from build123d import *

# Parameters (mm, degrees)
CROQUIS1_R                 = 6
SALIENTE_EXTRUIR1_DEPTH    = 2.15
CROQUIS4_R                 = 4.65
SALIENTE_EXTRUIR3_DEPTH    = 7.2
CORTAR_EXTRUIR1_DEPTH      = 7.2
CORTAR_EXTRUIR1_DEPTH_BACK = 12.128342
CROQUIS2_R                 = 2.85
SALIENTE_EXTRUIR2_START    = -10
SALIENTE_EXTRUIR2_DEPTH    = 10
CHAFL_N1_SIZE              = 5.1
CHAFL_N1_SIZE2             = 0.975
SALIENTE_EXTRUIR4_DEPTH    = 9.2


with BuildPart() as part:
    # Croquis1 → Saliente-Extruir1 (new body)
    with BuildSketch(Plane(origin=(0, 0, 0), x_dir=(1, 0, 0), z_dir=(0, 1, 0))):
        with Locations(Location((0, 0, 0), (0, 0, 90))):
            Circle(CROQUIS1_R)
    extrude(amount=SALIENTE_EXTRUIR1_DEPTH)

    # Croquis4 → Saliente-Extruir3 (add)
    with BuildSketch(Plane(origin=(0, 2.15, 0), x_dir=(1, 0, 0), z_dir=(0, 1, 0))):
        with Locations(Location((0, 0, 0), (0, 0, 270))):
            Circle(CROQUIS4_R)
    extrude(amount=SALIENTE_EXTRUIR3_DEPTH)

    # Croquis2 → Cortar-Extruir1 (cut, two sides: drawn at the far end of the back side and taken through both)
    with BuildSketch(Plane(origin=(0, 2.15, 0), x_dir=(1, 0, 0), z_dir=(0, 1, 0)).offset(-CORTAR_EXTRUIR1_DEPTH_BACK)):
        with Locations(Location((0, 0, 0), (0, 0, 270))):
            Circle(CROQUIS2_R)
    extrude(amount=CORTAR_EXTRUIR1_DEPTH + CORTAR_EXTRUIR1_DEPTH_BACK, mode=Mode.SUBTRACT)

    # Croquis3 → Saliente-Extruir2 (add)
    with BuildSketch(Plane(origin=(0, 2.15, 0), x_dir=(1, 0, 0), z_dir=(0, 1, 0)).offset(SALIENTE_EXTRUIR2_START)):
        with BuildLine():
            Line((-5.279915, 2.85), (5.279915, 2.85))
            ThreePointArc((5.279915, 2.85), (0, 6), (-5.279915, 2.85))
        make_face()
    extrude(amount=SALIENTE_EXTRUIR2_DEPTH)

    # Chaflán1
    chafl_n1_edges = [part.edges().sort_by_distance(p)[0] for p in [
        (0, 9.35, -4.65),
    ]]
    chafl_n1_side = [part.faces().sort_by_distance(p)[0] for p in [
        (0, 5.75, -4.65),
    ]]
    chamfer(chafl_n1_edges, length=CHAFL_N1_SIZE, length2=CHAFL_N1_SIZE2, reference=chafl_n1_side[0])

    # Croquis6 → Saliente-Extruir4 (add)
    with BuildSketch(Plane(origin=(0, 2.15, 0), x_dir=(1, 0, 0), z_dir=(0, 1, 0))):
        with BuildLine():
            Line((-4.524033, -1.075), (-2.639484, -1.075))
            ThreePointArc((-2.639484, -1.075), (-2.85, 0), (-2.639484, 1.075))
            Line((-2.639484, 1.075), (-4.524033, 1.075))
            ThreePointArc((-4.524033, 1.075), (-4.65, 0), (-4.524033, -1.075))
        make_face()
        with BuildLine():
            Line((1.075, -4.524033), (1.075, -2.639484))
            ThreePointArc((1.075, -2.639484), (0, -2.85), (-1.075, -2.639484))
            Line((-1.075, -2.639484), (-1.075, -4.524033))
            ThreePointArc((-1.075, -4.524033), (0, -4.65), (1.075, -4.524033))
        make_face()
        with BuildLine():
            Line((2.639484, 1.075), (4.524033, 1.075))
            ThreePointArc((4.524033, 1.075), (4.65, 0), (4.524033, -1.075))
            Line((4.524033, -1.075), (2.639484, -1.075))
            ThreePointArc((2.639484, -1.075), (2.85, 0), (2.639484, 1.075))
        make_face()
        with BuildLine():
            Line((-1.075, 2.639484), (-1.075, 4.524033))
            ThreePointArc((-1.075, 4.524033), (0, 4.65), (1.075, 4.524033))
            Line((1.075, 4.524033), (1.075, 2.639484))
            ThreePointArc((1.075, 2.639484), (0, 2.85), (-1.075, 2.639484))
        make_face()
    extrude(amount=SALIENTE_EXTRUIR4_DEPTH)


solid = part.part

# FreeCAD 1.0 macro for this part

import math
import FreeCAD as App
import Part
import Sketcher
from FreeCAD import Vector


def edges_at(feature, points):
    """Names of the edges that pass closest to the given points."""
    edges = feature.Shape.Edges
    near = lambda p: min(range(len(edges)), key=lambda i: edges[i].distToShape(Part.Vertex(*p))[0])
    return sorted({f"Edge{near(p) + 1}" for p in points})

doc = App.newDocument("Part")
body = doc.addObject("PartDesign::Body", "Body")

# Sketch on XZ plane
sketch1 = doc.addObject("Sketcher::SketchObject", "Sketch")
body.addObject(sketch1)
sketch1.AttachmentSupport = (doc.XZ_Plane, [""])
sketch1.MapMode = "FlatFace"
sketch1.addGeometry(Part.Circle(Vector(0, 0, 0), Vector(0, 0, 1), 6), False)
sketch1.addConstraint(Sketcher.Constraint("Coincident", 0, 3, -1, 1))
sketch1.addConstraint(Sketcher.Constraint("Diameter", 0, 12.0))
pad1 = doc.addObject("PartDesign::Pad", "Pad")
body.addObject(pad1)
pad1.Profile = sketch1
pad1.Length = 2.15
pad1.Reversed = True

# Sketch on XZ plane
sketch2 = doc.addObject("Sketcher::SketchObject", "Sketch001")
body.addObject(sketch2)
sketch2.AttachmentSupport = (doc.XZ_Plane, [""])
sketch2.MapMode = "FlatFace"
sketch2.AttachmentOffset = App.Placement(Vector(0, 0, -2.15), App.Rotation())
sketch2.addGeometry(Part.Circle(Vector(0, 0, 0), Vector(0, 0, 1), 4.65), False)
sketch2.addConstraint(Sketcher.Constraint("Coincident", 0, 3, -1, 1))
sketch2.addConstraint(Sketcher.Constraint("Diameter", 0, 9.3))
pad2 = doc.addObject("PartDesign::Pad", "Pad001")
body.addObject(pad2)
pad2.Profile = sketch2
pad2.Length = 7.2
pad2.Reversed = True

# Sketch on XZ plane
sketch3 = doc.addObject("Sketcher::SketchObject", "Sketch002")
body.addObject(sketch3)
sketch3.AttachmentSupport = (doc.XZ_Plane, [""])
sketch3.MapMode = "FlatFace"
sketch3.AttachmentOffset = App.Placement(Vector(0, 0, -2.15), App.Rotation())
sketch3.addGeometry(Part.Circle(Vector(0, 0, 0), Vector(0, 0, 1), 2.85), False)
sketch3.addConstraint(Sketcher.Constraint("Coincident", 0, 3, -1, 1))
sketch3.addConstraint(Sketcher.Constraint("Diameter", 0, 5.7))
pocket1 = doc.addObject("PartDesign::Pocket", "Pocket")
body.addObject(pocket1)
pocket1.Profile = sketch3
pocket1.Type = "ThroughAll"
pocket1.Midplane = True

# Sketch on XZ plane
sketch4 = doc.addObject("Sketcher::SketchObject", "Sketch003")
body.addObject(sketch4)
sketch4.AttachmentSupport = (doc.XZ_Plane, [""])
sketch4.MapMode = "FlatFace"
sketch4.AttachmentOffset = App.Placement(Vector(0, 0, 7.85), App.Rotation())
sketch4.addGeometry(Part.LineSegment(Vector(-5.279915, -2.85, 0), Vector(5.279915, -2.85, 0)), False)
sketch4.addGeometry(Part.ArcOfCircle(Part.Circle(Vector(0, 0, 0), Vector(0, 0, 1), 6), math.radians(-151.640648), math.radians(-28.359352)), False)
sketch4.addConstraint(Sketcher.Constraint("Coincident", 0, 1, 1, 1))
sketch4.addConstraint(Sketcher.Constraint("Coincident", 1, 2, 0, 2))
sketch4.addConstraint(Sketcher.Constraint("Horizontal", 0))
sketch4.addConstraint(Sketcher.Constraint("Coincident", 1, 3, -1, 1))
sketch4.addConstraint(Sketcher.Constraint("Radius", 1, 6.0))
sketch4.addConstraint(Sketcher.Constraint("DistanceY", 0, 1, -1, 1, 2.85))
pad3 = doc.addObject("PartDesign::Pad", "Pad002")
body.addObject(pad3)
pad3.Profile = sketch4
pad3.Length = 10
pad3.Reversed = True
doc.recompute()

chamfer = doc.addObject("PartDesign::Chamfer", "Chamfer")
body.addObject(chamfer)
chamfer.Base = (pad3, edges_at(pad3, [(0, 9.35, -4.65)]))
chamfer.ChamferType = "Two distances"
chamfer.Size = 5.1
chamfer.Size2 = 0.975

# Sketch on XZ plane
sketch5 = doc.addObject("Sketcher::SketchObject", "Sketch004")
body.addObject(sketch5)
sketch5.AttachmentSupport = (doc.XZ_Plane, [""])
sketch5.MapMode = "FlatFace"
sketch5.AttachmentOffset = App.Placement(Vector(0, 0, -2.15), App.Rotation())
sketch5.addGeometry(Part.LineSegment(Vector(-4.524033, 1.075, 0), Vector(-2.639484, 1.075, 0)), False)
sketch5.addGeometry(Part.ArcOfCircle(Part.Circle(Vector(0.000002, 0, 0), Vector(0, 0, 1), 2.850002), math.radians(157.840098), math.radians(202.159902)), False)
sketch5.addGeometry(Part.LineSegment(Vector(-2.639484, -1.075, 0), Vector(-4.524033, -1.075, 0)), False)
sketch5.addGeometry(Part.ArcOfCircle(Part.Circle(Vector(-0.000002, 0, 0), Vector(0, 0, 1), 4.649998), math.radians(166.633277), math.radians(193.366723)), False)
sketch5.addGeometry(Part.LineSegment(Vector(1.075, 4.524033, 0), Vector(1.075, 2.639484, 0)), False)
sketch5.addGeometry(Part.ArcOfCircle(Part.Circle(Vector(0, -0.000002, 0), Vector(0, 0, 1), 2.850002), math.radians(67.840098), math.radians(112.159902)), False)
sketch5.addGeometry(Part.LineSegment(Vector(-1.075, 2.639484, 0), Vector(-1.075, 4.524033, 0)), False)
sketch5.addGeometry(Part.ArcOfCircle(Part.Circle(Vector(0, 0.000002, 0), Vector(0, 0, 1), 4.649998), math.radians(76.633277), math.radians(103.366723)), False)
sketch5.addGeometry(Part.LineSegment(Vector(4.524033, -1.075, 0), Vector(2.639484, -1.075, 0)), False)
sketch5.addGeometry(Part.ArcOfCircle(Part.Circle(Vector(-0.000002, 0, 0), Vector(0, 0, 1), 2.850002), math.radians(-22.159902), math.radians(22.159902)), False)
sketch5.addGeometry(Part.LineSegment(Vector(2.639484, 1.075, 0), Vector(4.524033, 1.075, 0)), False)
sketch5.addGeometry(Part.ArcOfCircle(Part.Circle(Vector(0.000002, 0, 0), Vector(0, 0, 1), 4.649998), math.radians(-13.366723), math.radians(13.366723)), False)
sketch5.addGeometry(Part.LineSegment(Vector(-1.075, -4.524033, 0), Vector(-1.075, -2.639484, 0)), False)
sketch5.addGeometry(Part.ArcOfCircle(Part.Circle(Vector(0, 0.000002, 0), Vector(0, 0, 1), 2.850002), math.radians(-112.159902), math.radians(-67.840098)), False)
sketch5.addGeometry(Part.LineSegment(Vector(1.075, -2.639484, 0), Vector(1.075, -4.524033, 0)), False)
sketch5.addGeometry(Part.ArcOfCircle(Part.Circle(Vector(0, -0.000002, 0), Vector(0, 0, 1), 4.649998), math.radians(-103.366723), math.radians(-76.633277)), False)
sketch5.addConstraint(Sketcher.Constraint("Coincident", 0, 2, 1, 1))
sketch5.addConstraint(Sketcher.Constraint("Coincident", 1, 2, 2, 1))
sketch5.addConstraint(Sketcher.Constraint("Coincident", 2, 2, 3, 2))
sketch5.addConstraint(Sketcher.Constraint("Coincident", 3, 1, 0, 1))
sketch5.addConstraint(Sketcher.Constraint("Coincident", 4, 2, 5, 1))
sketch5.addConstraint(Sketcher.Constraint("Coincident", 5, 2, 6, 1))
sketch5.addConstraint(Sketcher.Constraint("Coincident", 6, 2, 7, 2))
sketch5.addConstraint(Sketcher.Constraint("Coincident", 7, 1, 4, 1))
sketch5.addConstraint(Sketcher.Constraint("Coincident", 8, 2, 9, 1))
sketch5.addConstraint(Sketcher.Constraint("Coincident", 9, 2, 10, 1))
sketch5.addConstraint(Sketcher.Constraint("Coincident", 10, 2, 11, 2))
sketch5.addConstraint(Sketcher.Constraint("Coincident", 11, 1, 8, 1))
sketch5.addConstraint(Sketcher.Constraint("Coincident", 12, 2, 13, 1))
sketch5.addConstraint(Sketcher.Constraint("Coincident", 13, 2, 14, 1))
sketch5.addConstraint(Sketcher.Constraint("Coincident", 14, 2, 15, 2))
sketch5.addConstraint(Sketcher.Constraint("Coincident", 15, 1, 12, 1))
sketch5.addConstraint(Sketcher.Constraint("Horizontal", 0))
sketch5.addConstraint(Sketcher.Constraint("Horizontal", 2))
sketch5.addConstraint(Sketcher.Constraint("Vertical", 4))
sketch5.addConstraint(Sketcher.Constraint("Vertical", 6))
sketch5.addConstraint(Sketcher.Constraint("Horizontal", 8))
sketch5.addConstraint(Sketcher.Constraint("Horizontal", 10))
sketch5.addConstraint(Sketcher.Constraint("Vertical", 12))
sketch5.addConstraint(Sketcher.Constraint("Vertical", 14))
sketch5.addConstraint(Sketcher.Constraint("Coincident", 1, 3, -1, 1))
sketch5.addConstraint(Sketcher.Constraint("Coincident", 3, 3, -1, 1))
sketch5.addConstraint(Sketcher.Constraint("Coincident", 5, 3, -1, 1))
sketch5.addConstraint(Sketcher.Constraint("Coincident", 7, 3, -1, 1))
sketch5.addConstraint(Sketcher.Constraint("Coincident", 9, 3, -1, 1))
sketch5.addConstraint(Sketcher.Constraint("Coincident", 11, 3, -1, 1))
sketch5.addConstraint(Sketcher.Constraint("Coincident", 13, 3, -1, 1))
sketch5.addConstraint(Sketcher.Constraint("Coincident", 15, 3, -1, 1))
sketch5.addConstraint(Sketcher.Constraint("Equal", 1, 5))
sketch5.addConstraint(Sketcher.Constraint("Equal", 3, 7))
sketch5.addConstraint(Sketcher.Constraint("Equal", 5, 9))
sketch5.addConstraint(Sketcher.Constraint("Equal", 7, 11))
sketch5.addConstraint(Sketcher.Constraint("Equal", 9, 13))
sketch5.addConstraint(Sketcher.Constraint("Equal", 11, 15))
sketch5.addConstraint(Sketcher.Constraint("Horizontal", 4, 2, 5, 2))
sketch5.addConstraint(Sketcher.Constraint("Horizontal", 2, 2, 8, 2))
sketch5.addConstraint(Sketcher.Constraint("Horizontal", 3, 1, 9, 2))
sketch5.addConstraint(Sketcher.Constraint("Horizontal", 12, 2, 13, 2))
sketch5.addConstraint(Sketcher.Constraint("Vertical", 0, 2, 1, 2))
sketch5.addConstraint(Sketcher.Constraint("Vertical", 6, 2, 12, 2))
sketch5.addConstraint(Sketcher.Constraint("Equal", 10, 4))
sketch5.addConstraint(Sketcher.Constraint("Radius", 1, 2.850002))
sketch5.addConstraint(Sketcher.Constraint("Radius", 3, 4.649998))
sketch5.addConstraint(Sketcher.Constraint("DistanceY", 1, 2, 0, 2, 2.15))
pad4 = doc.addObject("PartDesign::Pad", "Pad003")
body.addObject(pad4)
pad4.Profile = sketch5
pad4.Length = 9.2
pad4.Reversed = True

doc.recompute()
